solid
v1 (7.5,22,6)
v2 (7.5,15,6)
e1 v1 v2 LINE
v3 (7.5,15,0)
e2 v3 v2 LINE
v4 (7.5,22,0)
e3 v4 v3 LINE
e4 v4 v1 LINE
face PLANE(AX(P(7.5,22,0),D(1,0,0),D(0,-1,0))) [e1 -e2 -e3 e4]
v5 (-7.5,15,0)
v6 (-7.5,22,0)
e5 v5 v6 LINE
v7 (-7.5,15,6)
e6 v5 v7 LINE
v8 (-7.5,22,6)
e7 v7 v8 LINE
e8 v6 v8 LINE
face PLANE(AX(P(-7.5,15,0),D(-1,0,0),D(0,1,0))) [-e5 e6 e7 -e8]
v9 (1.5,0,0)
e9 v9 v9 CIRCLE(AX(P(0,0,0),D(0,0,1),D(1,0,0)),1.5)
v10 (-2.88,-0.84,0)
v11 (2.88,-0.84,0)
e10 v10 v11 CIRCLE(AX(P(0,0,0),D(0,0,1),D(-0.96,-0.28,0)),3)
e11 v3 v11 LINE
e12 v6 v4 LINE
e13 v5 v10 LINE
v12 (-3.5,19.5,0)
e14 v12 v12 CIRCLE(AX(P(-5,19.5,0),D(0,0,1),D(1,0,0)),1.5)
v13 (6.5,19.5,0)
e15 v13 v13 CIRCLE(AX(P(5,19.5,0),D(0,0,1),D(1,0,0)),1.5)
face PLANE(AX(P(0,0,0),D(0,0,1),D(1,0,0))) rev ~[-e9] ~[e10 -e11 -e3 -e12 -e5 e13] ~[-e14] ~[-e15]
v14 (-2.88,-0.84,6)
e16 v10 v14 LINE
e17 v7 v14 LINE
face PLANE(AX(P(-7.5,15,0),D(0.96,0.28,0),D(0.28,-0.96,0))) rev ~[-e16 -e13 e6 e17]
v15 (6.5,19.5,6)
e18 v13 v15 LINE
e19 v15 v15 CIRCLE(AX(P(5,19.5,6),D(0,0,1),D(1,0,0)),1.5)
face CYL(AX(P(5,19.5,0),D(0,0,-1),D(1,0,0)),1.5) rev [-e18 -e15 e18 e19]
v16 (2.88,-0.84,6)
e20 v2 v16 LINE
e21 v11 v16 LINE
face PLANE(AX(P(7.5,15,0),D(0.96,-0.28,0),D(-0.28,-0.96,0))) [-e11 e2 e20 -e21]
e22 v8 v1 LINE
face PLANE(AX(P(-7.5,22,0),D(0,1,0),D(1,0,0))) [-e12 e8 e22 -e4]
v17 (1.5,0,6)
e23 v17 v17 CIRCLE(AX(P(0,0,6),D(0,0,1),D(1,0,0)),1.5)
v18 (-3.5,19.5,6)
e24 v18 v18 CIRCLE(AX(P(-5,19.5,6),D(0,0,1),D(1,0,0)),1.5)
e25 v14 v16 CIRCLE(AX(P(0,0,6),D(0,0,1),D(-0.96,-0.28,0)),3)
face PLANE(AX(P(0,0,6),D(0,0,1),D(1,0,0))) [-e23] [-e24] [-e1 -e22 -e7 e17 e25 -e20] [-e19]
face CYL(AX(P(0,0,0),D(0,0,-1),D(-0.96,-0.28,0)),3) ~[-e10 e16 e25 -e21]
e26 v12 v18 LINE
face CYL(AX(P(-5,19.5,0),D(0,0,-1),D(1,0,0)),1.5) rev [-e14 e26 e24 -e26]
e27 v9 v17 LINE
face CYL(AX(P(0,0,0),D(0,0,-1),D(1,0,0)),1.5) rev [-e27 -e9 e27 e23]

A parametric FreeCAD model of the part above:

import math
import FreeCAD as App
import Part
import Sketcher
from FreeCAD import Vector
Q = App.Units.Quantity

doc = App.newDocument("Part")
body = doc.addObject("PartDesign::Body", "Body")

sketch1 = body.newObject("Sketcher::SketchObject", "Sketch")
sketch1.AttachmentSupport = (doc.getObject("XY_Plane"), [""])
sketch1.MapMode = "FlatFace"
sketch1.addGeometry([
    Part.LineSegment(Vector(-7.5, 15, 0), Vector(-2.9, -0.8, 0)),
    Part.ArcOfCircle(Part.Circle(Vector(0, 0, 0), Vector(0, 0, 1), 3), math.radians(-164), math.radians(-16)),
    Part.LineSegment(Vector(2.9, -0.8, 0), Vector(7.5, 15, 0)),
    Part.LineSegment(Vector(7.5, 15, 0), Vector(7.5, 22, 0)),
    Part.LineSegment(Vector(7.5, 22, 0), Vector(-7.5, 22, 0)),
    Part.LineSegment(Vector(-7.5, 22, 0), Vector(-7.5, 15, 0)),
    Part.Circle(Vector(0, 0, 0), Vector(0, 0, 1), 1.5),
    Part.Circle(Vector(-5, 19.5, 0), Vector(0, 0, 1), 1.5),
    Part.Circle(Vector(5, 19.5, 0), Vector(0, 0, 1), 1.5),
], False)
sketch1.addConstraint([
    Sketcher.Constraint("Tangent", 0, 2, 1, 1),
    Sketcher.Constraint("Tangent", 1, 2, 2, 1),
    Sketcher.Constraint("Coincident", 2, 2, 3, 1),
    Sketcher.Constraint("Coincident", 3, 2, 4, 1),
    Sketcher.Constraint("Coincident", 4, 2, 5, 1),
    Sketcher.Constraint("Coincident", 5, 2, 0, 1),
    Sketcher.Constraint("Vertical", 3),
    Sketcher.Constraint("Horizontal", 4),
    Sketcher.Constraint("Vertical", 5),
    Sketcher.Constraint("Coincident", 1, 3, -1, 1),
    Sketcher.Constraint("Coincident", 6, 3, -1, 1),
    Sketcher.Constraint("Equal", 6, 7),
    Sketcher.Constraint("Equal", 7, 8),
    Sketcher.Constraint("Symmetric", 7, 3, 8, 3, -2),
    Sketcher.Constraint("Symmetric", 2, 2, 5, 2, -2),
    Sketcher.Constraint("Diameter", 6, Q("3 mm")),
    Sketcher.Constraint("Radius", 1, Q("3 mm")),
    Sketcher.Constraint("DistanceX", 4, 2, 4, 1, Q("15 mm")),
    Sketcher.Constraint("DistanceY", 3, 1, 3, 2, Q("7 mm")),
    Sketcher.Constraint("DistanceY", -1, 1, 2, 2, Q("15 mm")),
    Sketcher.Constraint("DistanceX", 8, 3, 2, 2, Q("2.5 mm")),
    Sketcher.Constraint("DistanceY", 8, 3, 3, 2, Q("2.5 mm")),
])
pad1 = body.newObject("PartDesign::Pad", "Pad")
pad1.Profile = sketch1
pad1.Length = 6

doc.recompute()
